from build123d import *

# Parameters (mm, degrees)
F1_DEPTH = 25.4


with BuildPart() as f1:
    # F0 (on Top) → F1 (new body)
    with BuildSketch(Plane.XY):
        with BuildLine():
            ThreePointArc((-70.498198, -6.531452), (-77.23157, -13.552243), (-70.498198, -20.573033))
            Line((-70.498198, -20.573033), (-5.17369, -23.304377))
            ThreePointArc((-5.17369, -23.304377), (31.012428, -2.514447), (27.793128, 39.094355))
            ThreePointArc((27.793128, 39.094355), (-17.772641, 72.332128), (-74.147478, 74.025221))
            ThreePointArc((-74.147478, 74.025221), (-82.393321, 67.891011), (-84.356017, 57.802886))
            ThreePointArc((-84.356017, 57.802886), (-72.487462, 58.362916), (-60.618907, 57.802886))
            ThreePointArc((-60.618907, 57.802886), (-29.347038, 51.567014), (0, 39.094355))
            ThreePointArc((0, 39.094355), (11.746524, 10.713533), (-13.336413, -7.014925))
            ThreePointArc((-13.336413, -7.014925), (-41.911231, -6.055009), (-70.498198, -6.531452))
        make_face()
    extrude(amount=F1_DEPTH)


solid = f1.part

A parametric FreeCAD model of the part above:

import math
import FreeCAD as App
import Part
import Sketcher

V = App.Vector
Q = App.Units.Quantity

doc = App.newDocument("Part")
body = doc.addObject("PartDesign::Body", "Body")

sketch1 = body.newObject("Sketcher::SketchObject", "Sketch")
sketch1.AttachmentSupport = (doc.getObject("XY_Plane"), [""])
sketch1.MapMode = "FlatFace"
sketch1.addGeometry([
    Part.ArcOfCircle(Part.Circle(V(-70, -14, 0), V(0, 0, 1), 7), math.radians(92), math.radians(268)),
    Part.LineSegment(V(-70, -21, 0), V(-5, -23, 0)),
    Part.ArcOfCircle(Part.Circle(V(-4, 16, 0), V(0, 0, 1), 39), math.radians(-92), math.radians(37)),
    Part.ArcOfCircle(Part.Circle(V(-49, -18, 0), V(0, 0, 1), 95), math.radians(37), math.radians(105)),
    Part.ArcOfCircle(Part.Circle(V(-70, 60, 0), V(0, 0, 1), 14), math.radians(105), math.radians(190)),
    Part.ArcOfCircle(Part.Circle(V(-72, -68, 0), V(0, 0, 1), 126), math.radians(84.6), math.radians(95.4)),
    Part.ArcOfCircle(Part.Circle(V(-75, -97, 0), V(0, 0, 1), 156), math.radians(61), math.radians(85)),
    Part.ArcOfCircle(Part.Circle(V(-12, 18, 0), V(0, 0, 1), 25), math.radians(-93), math.radians(61)),
    Part.ArcOfCircle(Part.Circle(V(-47, -575, 0), V(0, 0, 1), 569), math.radians(86.64), math.radians(92.39)),
], False)
sketch1.addConstraint([
    Sketcher.Constraint("Tangent", 0, 2, 1, 1),
    Sketcher.Constraint("Tangent", 1, 2, 2, 1),
    Sketcher.Constraint("Tangent", 2, 2, 3, 1),
    Sketcher.Constraint("Tangent", 3, 2, 4, 1),
    Sketcher.Constraint("Coincident", 4, 2, 5, 2),
    Sketcher.Constraint("Tangent", 5, 1, 6, 2),
    Sketcher.Constraint("Tangent", 6, 1, 7, 2),
    Sketcher.Constraint("Tangent", 7, 1, 8, 1),
    Sketcher.Constraint("Tangent", 8, 2, 0, 1),
    Sketcher.Constraint("PointOnObject", 6, 1, -2),
    Sketcher.Constraint("Horizontal", 4, 2, 5, 1),
    Sketcher.Constraint("Horizontal", 2, 2, 6, 1),
    Sketcher.Constraint("Radius", 4, 14.227729),
    Sketcher.Constraint("Radius", 8, 569.086442),
    Sketcher.Constraint("Radius", 0, 7.026925),
    Sketcher.Constraint("Radius", 2, 39.079555),
    Sketcher.Constraint("Radius", 3, 95.395686),
    Sketcher.Constraint("Radius", 5, 126.043454),
    Sketcher.Constraint("Radius", 6, 155.784715),
    Sketcher.Constraint("Radius", 7, 24.608125),
    Sketcher.Constraint("DistanceX", 4, 3, -1, 1, 70.351501),
    Sketcher.Constraint("DistanceX", 0, 2, -1, 1, 70.498198),
    Sketcher.Constraint("DistanceY", 5, 3, 2, 3, 83.421601),
    Sketcher.Constraint("DistanceX", 6, 3, 8, 3, 28.5636),
    Sketcher.Constraint("DistanceX", 3, 3, -1, 1, 48.695781),
    Sketcher.Constraint("DistanceY", 3, 3, -1, 1, 17.912519),
    Sketcher.Constraint("DistanceX", 5, 3, -1, 1, 72.487462),
])
pad1 = body.newObject("PartDesign::Pad", "Pad")
pad1.Profile = sketch1
pad1.Length = Q("1 in")

doc.recompute()
